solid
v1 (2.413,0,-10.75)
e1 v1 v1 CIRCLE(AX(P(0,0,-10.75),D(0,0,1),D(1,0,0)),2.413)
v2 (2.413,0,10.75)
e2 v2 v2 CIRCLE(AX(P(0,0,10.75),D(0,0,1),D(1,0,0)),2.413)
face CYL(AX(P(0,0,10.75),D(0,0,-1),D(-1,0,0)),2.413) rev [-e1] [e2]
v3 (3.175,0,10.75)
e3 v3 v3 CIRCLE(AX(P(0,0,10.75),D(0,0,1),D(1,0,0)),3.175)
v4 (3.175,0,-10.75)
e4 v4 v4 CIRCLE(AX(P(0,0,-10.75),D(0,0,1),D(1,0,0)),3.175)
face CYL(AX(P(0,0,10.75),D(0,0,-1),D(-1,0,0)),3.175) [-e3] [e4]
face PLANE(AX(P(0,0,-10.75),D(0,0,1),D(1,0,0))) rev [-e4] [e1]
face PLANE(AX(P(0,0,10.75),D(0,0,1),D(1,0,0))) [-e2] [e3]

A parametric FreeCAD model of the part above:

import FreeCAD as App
import Part
import Sketcher

V = App.Vector
Q = App.Units.Quantity

doc = App.newDocument("Part")
body = doc.addObject("PartDesign::Body", "Body")

# Sketch on XY plane
sketch1 = body.newObject("Sketcher::SketchObject", "Sketch")
sketch1.AttachmentSupport = (doc.getObject("XY_Plane"), [""])
sketch1.MapMode = "FlatFace"
sketch1.addGeometry([
    Part.Circle(V(0, 0, 0), V(0, 0, 1), 3.175),
    Part.Circle(V(0, 0, 0), V(0, 0, 1), 2.413),
], False)
sketch1.addConstraint([
    Sketcher.Constraint("Coincident", 0, 3, -1, 1),
    Sketcher.Constraint("Coincident", 1, 3, -1, 1),
    Sketcher.Constraint("Diameter", 0, Q("0.25 in")),
    Sketcher.Constraint("Diameter", 1, Q("0.19 in")),
])
pad1 = body.newObject("PartDesign::Pad", "Pad")
pad1.Profile = sketch1
pad1.Length = 21.5
pad1.Midplane = True

doc.recompute()
